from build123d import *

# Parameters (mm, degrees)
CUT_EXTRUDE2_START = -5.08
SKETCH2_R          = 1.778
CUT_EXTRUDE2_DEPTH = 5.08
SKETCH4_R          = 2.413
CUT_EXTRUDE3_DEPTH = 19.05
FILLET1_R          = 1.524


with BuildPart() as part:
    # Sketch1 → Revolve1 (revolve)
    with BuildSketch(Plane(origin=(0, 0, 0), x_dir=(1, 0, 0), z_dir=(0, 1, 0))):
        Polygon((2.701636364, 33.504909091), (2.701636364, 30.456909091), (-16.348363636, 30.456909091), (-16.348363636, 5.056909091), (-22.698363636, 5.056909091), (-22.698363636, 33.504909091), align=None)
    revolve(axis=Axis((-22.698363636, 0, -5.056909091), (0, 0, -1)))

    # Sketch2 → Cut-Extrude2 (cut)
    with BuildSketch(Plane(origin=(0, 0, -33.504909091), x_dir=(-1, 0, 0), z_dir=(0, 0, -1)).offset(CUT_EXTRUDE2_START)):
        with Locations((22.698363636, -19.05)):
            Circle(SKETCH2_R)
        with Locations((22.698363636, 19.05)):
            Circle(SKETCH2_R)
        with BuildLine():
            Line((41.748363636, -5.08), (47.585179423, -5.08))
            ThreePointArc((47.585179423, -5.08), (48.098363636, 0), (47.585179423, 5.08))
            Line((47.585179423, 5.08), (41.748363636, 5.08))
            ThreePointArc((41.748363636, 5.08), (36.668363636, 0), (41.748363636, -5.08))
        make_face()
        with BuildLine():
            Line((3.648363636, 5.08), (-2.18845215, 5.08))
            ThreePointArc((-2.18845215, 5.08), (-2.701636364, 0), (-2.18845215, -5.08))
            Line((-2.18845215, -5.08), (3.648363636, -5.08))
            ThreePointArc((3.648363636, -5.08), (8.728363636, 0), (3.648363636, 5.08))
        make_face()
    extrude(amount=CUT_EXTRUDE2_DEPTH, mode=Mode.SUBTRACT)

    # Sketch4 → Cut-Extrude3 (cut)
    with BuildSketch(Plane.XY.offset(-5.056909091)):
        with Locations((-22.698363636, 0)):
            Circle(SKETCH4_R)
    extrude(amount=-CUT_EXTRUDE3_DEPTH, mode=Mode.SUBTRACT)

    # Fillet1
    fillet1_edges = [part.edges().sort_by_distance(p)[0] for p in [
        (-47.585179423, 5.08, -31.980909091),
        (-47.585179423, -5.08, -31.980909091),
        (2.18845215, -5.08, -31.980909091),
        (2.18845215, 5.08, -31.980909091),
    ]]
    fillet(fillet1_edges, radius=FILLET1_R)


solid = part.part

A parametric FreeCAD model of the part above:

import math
import FreeCAD as App
import Part
import Sketcher
Q = App.Units.Quantity


def edges_at(feature, points):
    """Names of the edges that pass closest to the given points."""
    edges = feature.Shape.Edges
    near = lambda p: min(range(len(edges)), key=lambda i: edges[i].distToShape(Part.Vertex(*p))[0])
    return sorted({f"Edge{near(p) + 1}" for p in points})

doc = App.newDocument("Part")
params = doc.addObject("Spreadsheet::Sheet", "Params")
for row, (alias, value) in enumerate([
    ("sketch1_width", "1 in"),
    ("sketch1_width2", "0.25 in"),
    ("sketch1_height", "0.12 in"),
    ("revolution_angle", "360 deg"),
    ("sketch2_radius", "1 in"),
    ("sketch2_radius2", "0.2 in"),
    ("sketch2_diameter", "0.14 in"),
    ("pocket1_length", "0.2 in"),
    ("sketch3_diameter", "0.19 in"),
    ("pocket2_length", "0.75 in"),
    ("fillet_radius", "0.06 in"),
], start=1):
    params.set(f"A{row}", alias)
    params.set(f"B{row}", "=" + value)
    params.setAlias(f"B{row}", alias)

body = doc.addObject("PartDesign::Body", "Body")

sketch1 = body.newObject("Sketcher::SketchObject", "Sketch")
sketch1.AttachmentSupport = (doc.getObject("XZ_Plane"), [""])
sketch1.MapMode = "FlatFace"
sketch1.addGeometry([
    Part.LineSegment(App.Vector(2.701636, -30.456909, 0), App.Vector(2.701636, -33.504909, 0)),
    Part.LineSegment(App.Vector(2.701636, -33.504909, 0), App.Vector(-22.698364, -33.504909, 0)),
    Part.LineSegment(App.Vector(-22.698364, -33.504909, 0), App.Vector(-22.698364, -5.056909, 0)),
    Part.LineSegment(App.Vector(-22.698364, -5.056909, 0), App.Vector(-16.348364, -5.056909, 0)),
    Part.LineSegment(App.Vector(-16.348364, -5.056909, 0), App.Vector(-16.348364, -30.456909, 0)),
    Part.LineSegment(App.Vector(-16.348364, -30.456909, 0), App.Vector(2.701636, -30.456909, 0)),
], False)
sketch1.addGeometry(Part.LineSegment(App.Vector(-22.698364, -5.056909, 0), App.Vector(-22.698364, -33.504909, 0)), True)
sketch1.addConstraint([
    Sketcher.Constraint("Coincident", 0, 2, 1, 1),
    Sketcher.Constraint("Coincident", 1, 2, 2, 1),
    Sketcher.Constraint("Coincident", 2, 2, 3, 1),
    Sketcher.Constraint("Coincident", 3, 2, 4, 1),
    Sketcher.Constraint("Coincident", 4, 2, 5, 1),
    Sketcher.Constraint("Coincident", 5, 2, 0, 1),
    Sketcher.Constraint("Vertical", 0),
    Sketcher.Constraint("Horizontal", 1),
    Sketcher.Constraint("Vertical", 2),
    Sketcher.Constraint("Horizontal", 3),
    Sketcher.Constraint("Vertical", 4),
    Sketcher.Constraint("Horizontal", 5),
    Sketcher.Constraint("Vertical", 6),
    Sketcher.Constraint("Coincident", 6, 1, 2, 2),
    Sketcher.Constraint("Horizontal", 0, 2, 6, 2),
    Sketcher.Constraint("Equal", 1, 4),
    Sketcher.Constraint("DistanceX", 1, 2, 1, 1, Q("1 in")),
    Sketcher.Constraint("DistanceX", 3, 1, 3, 2, Q("0.25 in")),
    Sketcher.Constraint("DistanceY", 0, 2, 0, 1, Q("0.12 in")),
    Sketcher.Constraint("DistanceY", 0, 2, -1, 1, 33.504909),
    Sketcher.Constraint("DistanceX", -1, 1, 0, 2, 2.701636),
])
sketch1.setExpression("Constraints[16]", "Params.sketch1_width")
sketch1.setExpression("Constraints[17]", "Params.sketch1_width2")
sketch1.setExpression("Constraints[18]", "Params.sketch1_height")
revolution = body.newObject("PartDesign::Revolution", "Revolution")
revolution.Profile = sketch1
revolution.ReferenceAxis = (sketch1, ["Axis0"])
revolution.setExpression("Angle", "Params.revolution_angle")

sketch2 = body.newObject("Sketcher::SketchObject", "Sketch001")
sketch2.AttachmentSupport = (doc.getObject("XY_Plane"), [""])
sketch2.MapMode = "FlatFace"
sketch2.AttachmentOffset = App.Placement(App.Vector(0, 0, -28.424909), App.Rotation())
sketch2.addGeometry([
    Part.Circle(App.Vector(-22.698364, -19.05, 0), App.Vector(0, 0, 1), 1.778),
    Part.Circle(App.Vector(-22.698364, 19.05, 0), App.Vector(0, 0, 1), 1.778),
    Part.LineSegment(App.Vector(-41.748364, -5.08, 0), App.Vector(-47.585179, -5.08, 0)),
    Part.ArcOfCircle(Part.Circle(App.Vector(-22.698364, 0, 0), App.Vector(0, 0, 1), 25.4), math.radians(168.463041), math.radians(191.536959)),
    Part.LineSegment(App.Vector(-47.585179, 5.08, 0), App.Vector(-41.748364, 5.08, 0)),
    Part.ArcOfCircle(Part.Circle(App.Vector(-41.748364, 0, 0), App.Vector(0, 0, 1), 5.08), math.radians(-90), math.radians(90)),
    Part.LineSegment(App.Vector(-3.648364, 5.08, 0), App.Vector(2.188452, 5.08, 0)),
    Part.ArcOfCircle(Part.Circle(App.Vector(-22.698364, 0, 0), App.Vector(0, 0, 1), 25.4), math.radians(-11.536959), math.radians(11.536959)),
    Part.LineSegment(App.Vector(2.188452, -5.08, 0), App.Vector(-3.648364, -5.08, 0)),
    Part.ArcOfCircle(Part.Circle(App.Vector(-3.648364, 0, 0), App.Vector(0, 0, 1), 5.08), math.radians(90), math.radians(270)),
], False)
sketch2.addConstraint([
    Sketcher.Constraint("Coincident", 2, 2, 3, 2),
    Sketcher.Constraint("Coincident", 3, 1, 4, 1),
    Sketcher.Constraint("Tangent", 4, 2, 5, 2),
    Sketcher.Constraint("Tangent", 5, 1, 2, 1),
    Sketcher.Constraint("Coincident", 6, 2, 7, 2),
    Sketcher.Constraint("Coincident", 7, 1, 8, 1),
    Sketcher.Constraint("Tangent", 8, 2, 9, 2),
    Sketcher.Constraint("Tangent", 9, 1, 6, 1),
    Sketcher.Constraint("Horizontal", 2),
    Sketcher.Constraint("Horizontal", 4),
    Sketcher.Constraint("Horizontal", 6),
    Sketcher.Constraint("Horizontal", 8),
    Sketcher.Constraint("Coincident", 7, 3, 3, 3),
    Sketcher.Constraint("Equal", 0, 1),
    Sketcher.Constraint("Equal", 3, 7),
    Sketcher.Constraint("Equal", 5, 9),
    Sketcher.Constraint("Symmetric", 0, 3, 1, 3, -1),
    Sketcher.Constraint("Symmetric", 2, 2, 3, 1, -1),
    Sketcher.Constraint("PointOnObject", 9, 3, -1),
    Sketcher.Constraint("Vertical", 1, 3, 3, 3),
    Sketcher.Constraint("Equal", 4, 6),
    Sketcher.Constraint("Radius", 3, Q("1 in")),
    Sketcher.Constraint("Radius", 5, Q("0.2 in")),
    Sketcher.Constraint("Diameter", 0, Q("0.14 in")),
    Sketcher.Constraint("DistanceY", 0, 3, 1, 3, Q("1.5 in")),
    Sketcher.Constraint("DistanceX", 5, 3, 9, 3, Q("1.5 in")),
    Sketcher.Constraint("DistanceX", 2, 2, -1, 1, 47.585179),
])
sketch2.setExpression("Constraints[21]", "Params.sketch2_radius")
sketch2.setExpression("Constraints[22]", "Params.sketch2_radius2")
sketch2.setExpression("Constraints[23]", "Params.sketch2_diameter")
pocket1 = body.newObject("PartDesign::Pocket", "Pocket")
pocket1.Profile = sketch2
pocket1.setExpression("Length", "Params.pocket1_length")

sketch3 = body.newObject("Sketcher::SketchObject", "Sketch002")
sketch3.AttachmentSupport = (doc.getObject("XY_Plane"), [""])
sketch3.MapMode = "FlatFace"
sketch3.AttachmentOffset = App.Placement(App.Vector(0, 0, -5.056909), App.Rotation())
sketch3.addGeometry(Part.Circle(App.Vector(-22.698364, 0, 0), App.Vector(0, 0, 1), 2.413), False)
sketch3.addConstraint([
    Sketcher.Constraint("PointOnObject", 0, 3, -1),
    Sketcher.Constraint("Diameter", 0, Q("0.19 in")),
    Sketcher.Constraint("DistanceX", 0, 3, -1, 1, 22.698364),
])
sketch3.setExpression("Constraints[1]", "Params.sketch3_diameter")
pocket2 = body.newObject("PartDesign::Pocket", "Pocket001")
pocket2.Profile = sketch3
pocket2.setExpression("Length", "Params.pocket2_length")
doc.recompute()

fillet = body.newObject("PartDesign::Fillet", "Fillet")
fillet.Base = (pocket2, edges_at(pocket2, [
    (-47.585, 5.08, -31.981),
    (-47.585, -5.08, -31.981),
    (2.188, -5.08, -31.981),
    (2.188, 5.08, -31.981),
]))
fillet.setExpression("Radius", "Params.fillet_radius")

doc.recompute()
